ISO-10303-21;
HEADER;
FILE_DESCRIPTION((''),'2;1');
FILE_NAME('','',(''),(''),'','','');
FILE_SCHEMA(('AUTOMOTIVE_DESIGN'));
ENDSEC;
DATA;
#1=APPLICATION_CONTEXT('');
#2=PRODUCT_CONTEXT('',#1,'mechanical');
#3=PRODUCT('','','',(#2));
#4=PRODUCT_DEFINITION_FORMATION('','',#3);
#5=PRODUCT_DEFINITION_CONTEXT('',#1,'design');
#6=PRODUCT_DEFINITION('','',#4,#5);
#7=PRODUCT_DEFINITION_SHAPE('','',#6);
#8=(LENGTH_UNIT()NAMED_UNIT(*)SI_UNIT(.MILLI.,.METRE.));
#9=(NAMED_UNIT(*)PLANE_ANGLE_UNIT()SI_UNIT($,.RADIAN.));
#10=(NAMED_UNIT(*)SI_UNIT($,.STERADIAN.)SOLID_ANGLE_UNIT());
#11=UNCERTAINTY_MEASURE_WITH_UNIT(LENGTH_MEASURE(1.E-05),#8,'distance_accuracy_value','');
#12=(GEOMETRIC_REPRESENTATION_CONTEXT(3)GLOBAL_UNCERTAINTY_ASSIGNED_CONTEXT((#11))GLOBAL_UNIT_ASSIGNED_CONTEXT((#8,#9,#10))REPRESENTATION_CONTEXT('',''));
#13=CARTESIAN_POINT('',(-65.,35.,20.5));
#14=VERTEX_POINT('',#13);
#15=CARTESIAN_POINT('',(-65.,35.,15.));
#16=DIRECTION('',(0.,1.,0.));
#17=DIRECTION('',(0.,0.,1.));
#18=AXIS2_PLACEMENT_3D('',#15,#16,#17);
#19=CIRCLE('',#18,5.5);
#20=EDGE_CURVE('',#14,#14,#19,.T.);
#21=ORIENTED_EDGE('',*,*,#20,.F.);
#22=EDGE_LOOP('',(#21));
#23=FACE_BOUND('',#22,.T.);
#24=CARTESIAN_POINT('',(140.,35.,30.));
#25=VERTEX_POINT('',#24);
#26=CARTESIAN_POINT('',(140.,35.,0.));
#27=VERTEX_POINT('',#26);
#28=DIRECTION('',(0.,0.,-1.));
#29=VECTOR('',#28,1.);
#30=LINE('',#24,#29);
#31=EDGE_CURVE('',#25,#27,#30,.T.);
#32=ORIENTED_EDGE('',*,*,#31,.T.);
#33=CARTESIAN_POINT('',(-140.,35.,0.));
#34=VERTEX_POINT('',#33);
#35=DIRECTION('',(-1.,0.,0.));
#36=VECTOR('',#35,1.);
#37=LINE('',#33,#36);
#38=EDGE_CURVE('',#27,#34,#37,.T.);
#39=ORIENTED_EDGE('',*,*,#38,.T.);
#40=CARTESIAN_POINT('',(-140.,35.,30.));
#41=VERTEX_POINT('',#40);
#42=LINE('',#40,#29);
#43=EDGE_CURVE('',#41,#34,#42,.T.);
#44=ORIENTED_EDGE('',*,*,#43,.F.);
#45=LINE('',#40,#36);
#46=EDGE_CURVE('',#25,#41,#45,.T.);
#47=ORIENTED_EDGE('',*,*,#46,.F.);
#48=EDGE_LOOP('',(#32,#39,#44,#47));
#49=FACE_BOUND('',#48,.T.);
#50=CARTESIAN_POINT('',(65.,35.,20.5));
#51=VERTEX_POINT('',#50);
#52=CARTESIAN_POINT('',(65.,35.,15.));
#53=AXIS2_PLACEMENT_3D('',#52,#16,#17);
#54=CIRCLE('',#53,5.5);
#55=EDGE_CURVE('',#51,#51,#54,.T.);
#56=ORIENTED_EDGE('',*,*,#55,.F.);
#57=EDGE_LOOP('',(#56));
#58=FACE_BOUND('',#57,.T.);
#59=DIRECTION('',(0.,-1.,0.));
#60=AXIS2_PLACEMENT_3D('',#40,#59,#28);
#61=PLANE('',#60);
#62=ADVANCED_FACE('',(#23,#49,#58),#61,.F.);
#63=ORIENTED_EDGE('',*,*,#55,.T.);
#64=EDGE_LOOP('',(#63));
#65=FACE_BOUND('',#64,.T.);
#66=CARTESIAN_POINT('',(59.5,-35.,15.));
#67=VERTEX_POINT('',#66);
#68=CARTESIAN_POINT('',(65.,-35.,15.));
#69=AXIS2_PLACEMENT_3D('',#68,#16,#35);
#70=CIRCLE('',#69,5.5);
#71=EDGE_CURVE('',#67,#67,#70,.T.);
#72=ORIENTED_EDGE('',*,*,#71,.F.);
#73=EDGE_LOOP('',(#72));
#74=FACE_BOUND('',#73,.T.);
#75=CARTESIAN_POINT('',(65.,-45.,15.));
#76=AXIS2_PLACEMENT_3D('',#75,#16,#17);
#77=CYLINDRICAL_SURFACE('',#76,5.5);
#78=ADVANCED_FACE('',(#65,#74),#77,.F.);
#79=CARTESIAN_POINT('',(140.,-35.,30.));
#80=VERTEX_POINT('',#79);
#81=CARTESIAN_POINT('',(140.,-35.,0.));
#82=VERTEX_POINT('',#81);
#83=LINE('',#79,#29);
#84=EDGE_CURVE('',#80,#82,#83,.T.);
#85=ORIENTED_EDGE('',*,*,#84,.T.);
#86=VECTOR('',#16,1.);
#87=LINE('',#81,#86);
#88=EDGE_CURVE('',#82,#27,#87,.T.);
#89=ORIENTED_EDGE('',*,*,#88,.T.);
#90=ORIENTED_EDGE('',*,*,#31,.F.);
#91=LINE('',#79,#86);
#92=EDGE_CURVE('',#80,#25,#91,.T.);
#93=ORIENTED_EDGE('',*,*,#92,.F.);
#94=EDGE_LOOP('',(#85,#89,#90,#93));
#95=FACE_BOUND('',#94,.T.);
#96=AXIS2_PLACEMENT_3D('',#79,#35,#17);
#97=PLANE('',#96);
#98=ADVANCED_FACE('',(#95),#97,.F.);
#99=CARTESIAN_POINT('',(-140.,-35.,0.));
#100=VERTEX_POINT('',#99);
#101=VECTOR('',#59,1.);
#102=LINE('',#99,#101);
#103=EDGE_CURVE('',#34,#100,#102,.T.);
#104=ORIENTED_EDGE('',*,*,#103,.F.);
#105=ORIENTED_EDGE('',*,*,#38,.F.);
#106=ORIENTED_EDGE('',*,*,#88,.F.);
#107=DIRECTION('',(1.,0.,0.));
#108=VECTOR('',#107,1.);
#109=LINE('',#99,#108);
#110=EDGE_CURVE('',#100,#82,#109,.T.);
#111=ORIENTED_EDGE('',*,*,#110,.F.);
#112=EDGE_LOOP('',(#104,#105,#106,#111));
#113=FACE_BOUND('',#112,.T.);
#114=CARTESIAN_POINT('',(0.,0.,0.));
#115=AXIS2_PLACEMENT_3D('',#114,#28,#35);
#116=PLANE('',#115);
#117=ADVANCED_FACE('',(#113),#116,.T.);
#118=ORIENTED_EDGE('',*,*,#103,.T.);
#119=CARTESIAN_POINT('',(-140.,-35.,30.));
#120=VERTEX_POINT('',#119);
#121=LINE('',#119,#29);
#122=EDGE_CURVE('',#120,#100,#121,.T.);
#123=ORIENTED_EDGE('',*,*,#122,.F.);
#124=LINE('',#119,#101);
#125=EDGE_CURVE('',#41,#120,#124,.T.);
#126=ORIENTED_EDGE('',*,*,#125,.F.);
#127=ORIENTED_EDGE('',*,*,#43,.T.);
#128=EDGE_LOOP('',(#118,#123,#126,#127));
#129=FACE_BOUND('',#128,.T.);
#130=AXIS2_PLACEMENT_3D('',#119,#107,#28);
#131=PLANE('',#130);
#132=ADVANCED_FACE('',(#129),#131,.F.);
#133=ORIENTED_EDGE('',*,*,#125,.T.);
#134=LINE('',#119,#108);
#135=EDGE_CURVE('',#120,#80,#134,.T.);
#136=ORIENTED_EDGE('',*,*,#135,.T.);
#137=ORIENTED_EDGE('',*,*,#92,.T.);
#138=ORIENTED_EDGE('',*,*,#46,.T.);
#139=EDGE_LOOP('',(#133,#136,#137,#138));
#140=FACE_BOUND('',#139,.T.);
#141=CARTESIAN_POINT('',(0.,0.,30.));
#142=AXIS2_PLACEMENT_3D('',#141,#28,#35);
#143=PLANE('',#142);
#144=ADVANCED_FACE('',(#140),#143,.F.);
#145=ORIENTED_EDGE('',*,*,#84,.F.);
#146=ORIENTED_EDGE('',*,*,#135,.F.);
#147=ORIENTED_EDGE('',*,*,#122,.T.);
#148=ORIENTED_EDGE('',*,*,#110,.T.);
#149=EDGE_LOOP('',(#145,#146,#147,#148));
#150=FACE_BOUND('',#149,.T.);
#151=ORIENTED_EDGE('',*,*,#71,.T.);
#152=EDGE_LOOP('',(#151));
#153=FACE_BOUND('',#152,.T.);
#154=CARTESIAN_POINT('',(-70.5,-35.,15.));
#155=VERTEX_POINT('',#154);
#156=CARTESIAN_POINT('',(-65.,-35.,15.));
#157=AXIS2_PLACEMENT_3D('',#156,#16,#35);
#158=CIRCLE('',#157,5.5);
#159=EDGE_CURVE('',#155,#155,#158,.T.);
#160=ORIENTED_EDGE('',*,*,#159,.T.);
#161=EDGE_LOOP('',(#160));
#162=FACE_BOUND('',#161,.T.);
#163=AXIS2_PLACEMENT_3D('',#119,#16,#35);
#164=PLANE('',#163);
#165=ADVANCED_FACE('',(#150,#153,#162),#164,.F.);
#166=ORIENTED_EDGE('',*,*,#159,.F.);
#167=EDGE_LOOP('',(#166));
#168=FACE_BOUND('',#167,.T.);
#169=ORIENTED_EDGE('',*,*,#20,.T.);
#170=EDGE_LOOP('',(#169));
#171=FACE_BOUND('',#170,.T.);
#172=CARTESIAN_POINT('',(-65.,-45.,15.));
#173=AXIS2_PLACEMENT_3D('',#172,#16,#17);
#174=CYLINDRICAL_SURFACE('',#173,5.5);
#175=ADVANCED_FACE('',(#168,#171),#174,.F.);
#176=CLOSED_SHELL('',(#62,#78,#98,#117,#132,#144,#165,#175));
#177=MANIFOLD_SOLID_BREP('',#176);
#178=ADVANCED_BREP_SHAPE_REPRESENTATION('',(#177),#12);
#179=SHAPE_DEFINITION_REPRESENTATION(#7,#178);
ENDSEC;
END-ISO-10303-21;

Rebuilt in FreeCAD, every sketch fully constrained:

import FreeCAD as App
import Part
import Sketcher
from FreeCAD import Vector
Q = App.Units.Quantity


def add_polygon(sketch, points):
    """Adds a closed chain of lines whose ends are joined by coincident constraints."""
    first, n = sketch.GeometryCount, len(points)
    for a, b in zip(points, points[1:] + points[:1]):
        sketch.addGeometry(Part.LineSegment(App.Vector(*a, 0), App.Vector(*b, 0)), False)
    for i in range(n):
        sketch.addConstraint(Sketcher.Constraint("Coincident", first + i, 2, first + (i + 1) % n, 1))

doc = App.newDocument("Part")
params = doc.addObject("Spreadsheet::Sheet", "Params")
for row, (alias, value) in enumerate([
    ("sketch1_width", "280 mm"),
    ("sketch1_height", "70 mm"),
    ("pad1_length", "30 mm"),
    ("sketch2_diameter", "11 mm"),
    ("pocket1_length", "80 mm"),
], start=1):
    params.set(f"A{row}", alias)
    params.set(f"B{row}", "=" + value)
    params.setAlias(f"B{row}", alias)

body = doc.addObject("PartDesign::Body", "Body")

sketch1 = body.newObject("Sketcher::SketchObject", "Sketch")
sketch1.AttachmentSupport = (doc.getObject("XY_Plane"), [""])
sketch1.MapMode = "FlatFace"
add_polygon(sketch1, [(-140, 35), (-140, -35), (140, -35), (140, 35)])
sketch1.addConstraint(Sketcher.Constraint("Vertical", 0))
sketch1.addConstraint(Sketcher.Constraint("Horizontal", 1))
sketch1.addConstraint(Sketcher.Constraint("Vertical", 2))
sketch1.addConstraint(Sketcher.Constraint("Horizontal", 3))
sketch1.addConstraint(Sketcher.Constraint("Symmetric", 0, 2, 2, 2, -1, 1))
sketch1.addConstraint(Sketcher.Constraint("DistanceX", 1, 1, 1, 2, Q("280 mm")))
sketch1.addConstraint(Sketcher.Constraint("DistanceY", 0, 2, 0, 1, Q("70 mm")))
sketch1.setExpression("Constraints[9]", "Params.sketch1_width")
sketch1.setExpression("Constraints[10]", "Params.sketch1_height")
pad1 = body.newObject("PartDesign::Pad", "Pad")
pad1.Profile = sketch1
pad1.setExpression("Length", "Params.pad1_length")

sketch2 = body.newObject("Sketcher::SketchObject", "Sketch001")
sketch2.AttachmentSupport = (doc.getObject("XZ_Plane"), [""])
sketch2.MapMode = "FlatFace"
sketch2.AttachmentOffset = App.Placement(Vector(0, 0, -35), App.Rotation())
sketch2.addGeometry(Part.Circle(Vector(-65, 15, 0), Vector(0, 0, 1), 5.5), False)
sketch2.addGeometry(Part.Circle(Vector(65, 15, 0), Vector(0, 0, 1), 5.5), False)
sketch2.addConstraint(Sketcher.Constraint("Equal", 0, 1))
sketch2.addConstraint(Sketcher.Constraint("Symmetric", 0, 3, 1, 3, -2))
sketch2.addConstraint(Sketcher.Constraint("Diameter", 0, Q("11 mm")))
sketch2.addConstraint(Sketcher.Constraint("DistanceX", 0, 3, -1, 1, Q("65 mm")))
sketch2.addConstraint(Sketcher.Constraint("DistanceY", -1, 1, 0, 3, Q("15 mm")))
sketch2.setExpression("Constraints[2]", "Params.sketch2_diameter")
pocket1 = body.newObject("PartDesign::Pocket", "Pocket")
pocket1.Profile = sketch2
pocket1.setExpression("Length", "Params.pocket1_length")
pocket1.Reversed = True

doc.recompute()
